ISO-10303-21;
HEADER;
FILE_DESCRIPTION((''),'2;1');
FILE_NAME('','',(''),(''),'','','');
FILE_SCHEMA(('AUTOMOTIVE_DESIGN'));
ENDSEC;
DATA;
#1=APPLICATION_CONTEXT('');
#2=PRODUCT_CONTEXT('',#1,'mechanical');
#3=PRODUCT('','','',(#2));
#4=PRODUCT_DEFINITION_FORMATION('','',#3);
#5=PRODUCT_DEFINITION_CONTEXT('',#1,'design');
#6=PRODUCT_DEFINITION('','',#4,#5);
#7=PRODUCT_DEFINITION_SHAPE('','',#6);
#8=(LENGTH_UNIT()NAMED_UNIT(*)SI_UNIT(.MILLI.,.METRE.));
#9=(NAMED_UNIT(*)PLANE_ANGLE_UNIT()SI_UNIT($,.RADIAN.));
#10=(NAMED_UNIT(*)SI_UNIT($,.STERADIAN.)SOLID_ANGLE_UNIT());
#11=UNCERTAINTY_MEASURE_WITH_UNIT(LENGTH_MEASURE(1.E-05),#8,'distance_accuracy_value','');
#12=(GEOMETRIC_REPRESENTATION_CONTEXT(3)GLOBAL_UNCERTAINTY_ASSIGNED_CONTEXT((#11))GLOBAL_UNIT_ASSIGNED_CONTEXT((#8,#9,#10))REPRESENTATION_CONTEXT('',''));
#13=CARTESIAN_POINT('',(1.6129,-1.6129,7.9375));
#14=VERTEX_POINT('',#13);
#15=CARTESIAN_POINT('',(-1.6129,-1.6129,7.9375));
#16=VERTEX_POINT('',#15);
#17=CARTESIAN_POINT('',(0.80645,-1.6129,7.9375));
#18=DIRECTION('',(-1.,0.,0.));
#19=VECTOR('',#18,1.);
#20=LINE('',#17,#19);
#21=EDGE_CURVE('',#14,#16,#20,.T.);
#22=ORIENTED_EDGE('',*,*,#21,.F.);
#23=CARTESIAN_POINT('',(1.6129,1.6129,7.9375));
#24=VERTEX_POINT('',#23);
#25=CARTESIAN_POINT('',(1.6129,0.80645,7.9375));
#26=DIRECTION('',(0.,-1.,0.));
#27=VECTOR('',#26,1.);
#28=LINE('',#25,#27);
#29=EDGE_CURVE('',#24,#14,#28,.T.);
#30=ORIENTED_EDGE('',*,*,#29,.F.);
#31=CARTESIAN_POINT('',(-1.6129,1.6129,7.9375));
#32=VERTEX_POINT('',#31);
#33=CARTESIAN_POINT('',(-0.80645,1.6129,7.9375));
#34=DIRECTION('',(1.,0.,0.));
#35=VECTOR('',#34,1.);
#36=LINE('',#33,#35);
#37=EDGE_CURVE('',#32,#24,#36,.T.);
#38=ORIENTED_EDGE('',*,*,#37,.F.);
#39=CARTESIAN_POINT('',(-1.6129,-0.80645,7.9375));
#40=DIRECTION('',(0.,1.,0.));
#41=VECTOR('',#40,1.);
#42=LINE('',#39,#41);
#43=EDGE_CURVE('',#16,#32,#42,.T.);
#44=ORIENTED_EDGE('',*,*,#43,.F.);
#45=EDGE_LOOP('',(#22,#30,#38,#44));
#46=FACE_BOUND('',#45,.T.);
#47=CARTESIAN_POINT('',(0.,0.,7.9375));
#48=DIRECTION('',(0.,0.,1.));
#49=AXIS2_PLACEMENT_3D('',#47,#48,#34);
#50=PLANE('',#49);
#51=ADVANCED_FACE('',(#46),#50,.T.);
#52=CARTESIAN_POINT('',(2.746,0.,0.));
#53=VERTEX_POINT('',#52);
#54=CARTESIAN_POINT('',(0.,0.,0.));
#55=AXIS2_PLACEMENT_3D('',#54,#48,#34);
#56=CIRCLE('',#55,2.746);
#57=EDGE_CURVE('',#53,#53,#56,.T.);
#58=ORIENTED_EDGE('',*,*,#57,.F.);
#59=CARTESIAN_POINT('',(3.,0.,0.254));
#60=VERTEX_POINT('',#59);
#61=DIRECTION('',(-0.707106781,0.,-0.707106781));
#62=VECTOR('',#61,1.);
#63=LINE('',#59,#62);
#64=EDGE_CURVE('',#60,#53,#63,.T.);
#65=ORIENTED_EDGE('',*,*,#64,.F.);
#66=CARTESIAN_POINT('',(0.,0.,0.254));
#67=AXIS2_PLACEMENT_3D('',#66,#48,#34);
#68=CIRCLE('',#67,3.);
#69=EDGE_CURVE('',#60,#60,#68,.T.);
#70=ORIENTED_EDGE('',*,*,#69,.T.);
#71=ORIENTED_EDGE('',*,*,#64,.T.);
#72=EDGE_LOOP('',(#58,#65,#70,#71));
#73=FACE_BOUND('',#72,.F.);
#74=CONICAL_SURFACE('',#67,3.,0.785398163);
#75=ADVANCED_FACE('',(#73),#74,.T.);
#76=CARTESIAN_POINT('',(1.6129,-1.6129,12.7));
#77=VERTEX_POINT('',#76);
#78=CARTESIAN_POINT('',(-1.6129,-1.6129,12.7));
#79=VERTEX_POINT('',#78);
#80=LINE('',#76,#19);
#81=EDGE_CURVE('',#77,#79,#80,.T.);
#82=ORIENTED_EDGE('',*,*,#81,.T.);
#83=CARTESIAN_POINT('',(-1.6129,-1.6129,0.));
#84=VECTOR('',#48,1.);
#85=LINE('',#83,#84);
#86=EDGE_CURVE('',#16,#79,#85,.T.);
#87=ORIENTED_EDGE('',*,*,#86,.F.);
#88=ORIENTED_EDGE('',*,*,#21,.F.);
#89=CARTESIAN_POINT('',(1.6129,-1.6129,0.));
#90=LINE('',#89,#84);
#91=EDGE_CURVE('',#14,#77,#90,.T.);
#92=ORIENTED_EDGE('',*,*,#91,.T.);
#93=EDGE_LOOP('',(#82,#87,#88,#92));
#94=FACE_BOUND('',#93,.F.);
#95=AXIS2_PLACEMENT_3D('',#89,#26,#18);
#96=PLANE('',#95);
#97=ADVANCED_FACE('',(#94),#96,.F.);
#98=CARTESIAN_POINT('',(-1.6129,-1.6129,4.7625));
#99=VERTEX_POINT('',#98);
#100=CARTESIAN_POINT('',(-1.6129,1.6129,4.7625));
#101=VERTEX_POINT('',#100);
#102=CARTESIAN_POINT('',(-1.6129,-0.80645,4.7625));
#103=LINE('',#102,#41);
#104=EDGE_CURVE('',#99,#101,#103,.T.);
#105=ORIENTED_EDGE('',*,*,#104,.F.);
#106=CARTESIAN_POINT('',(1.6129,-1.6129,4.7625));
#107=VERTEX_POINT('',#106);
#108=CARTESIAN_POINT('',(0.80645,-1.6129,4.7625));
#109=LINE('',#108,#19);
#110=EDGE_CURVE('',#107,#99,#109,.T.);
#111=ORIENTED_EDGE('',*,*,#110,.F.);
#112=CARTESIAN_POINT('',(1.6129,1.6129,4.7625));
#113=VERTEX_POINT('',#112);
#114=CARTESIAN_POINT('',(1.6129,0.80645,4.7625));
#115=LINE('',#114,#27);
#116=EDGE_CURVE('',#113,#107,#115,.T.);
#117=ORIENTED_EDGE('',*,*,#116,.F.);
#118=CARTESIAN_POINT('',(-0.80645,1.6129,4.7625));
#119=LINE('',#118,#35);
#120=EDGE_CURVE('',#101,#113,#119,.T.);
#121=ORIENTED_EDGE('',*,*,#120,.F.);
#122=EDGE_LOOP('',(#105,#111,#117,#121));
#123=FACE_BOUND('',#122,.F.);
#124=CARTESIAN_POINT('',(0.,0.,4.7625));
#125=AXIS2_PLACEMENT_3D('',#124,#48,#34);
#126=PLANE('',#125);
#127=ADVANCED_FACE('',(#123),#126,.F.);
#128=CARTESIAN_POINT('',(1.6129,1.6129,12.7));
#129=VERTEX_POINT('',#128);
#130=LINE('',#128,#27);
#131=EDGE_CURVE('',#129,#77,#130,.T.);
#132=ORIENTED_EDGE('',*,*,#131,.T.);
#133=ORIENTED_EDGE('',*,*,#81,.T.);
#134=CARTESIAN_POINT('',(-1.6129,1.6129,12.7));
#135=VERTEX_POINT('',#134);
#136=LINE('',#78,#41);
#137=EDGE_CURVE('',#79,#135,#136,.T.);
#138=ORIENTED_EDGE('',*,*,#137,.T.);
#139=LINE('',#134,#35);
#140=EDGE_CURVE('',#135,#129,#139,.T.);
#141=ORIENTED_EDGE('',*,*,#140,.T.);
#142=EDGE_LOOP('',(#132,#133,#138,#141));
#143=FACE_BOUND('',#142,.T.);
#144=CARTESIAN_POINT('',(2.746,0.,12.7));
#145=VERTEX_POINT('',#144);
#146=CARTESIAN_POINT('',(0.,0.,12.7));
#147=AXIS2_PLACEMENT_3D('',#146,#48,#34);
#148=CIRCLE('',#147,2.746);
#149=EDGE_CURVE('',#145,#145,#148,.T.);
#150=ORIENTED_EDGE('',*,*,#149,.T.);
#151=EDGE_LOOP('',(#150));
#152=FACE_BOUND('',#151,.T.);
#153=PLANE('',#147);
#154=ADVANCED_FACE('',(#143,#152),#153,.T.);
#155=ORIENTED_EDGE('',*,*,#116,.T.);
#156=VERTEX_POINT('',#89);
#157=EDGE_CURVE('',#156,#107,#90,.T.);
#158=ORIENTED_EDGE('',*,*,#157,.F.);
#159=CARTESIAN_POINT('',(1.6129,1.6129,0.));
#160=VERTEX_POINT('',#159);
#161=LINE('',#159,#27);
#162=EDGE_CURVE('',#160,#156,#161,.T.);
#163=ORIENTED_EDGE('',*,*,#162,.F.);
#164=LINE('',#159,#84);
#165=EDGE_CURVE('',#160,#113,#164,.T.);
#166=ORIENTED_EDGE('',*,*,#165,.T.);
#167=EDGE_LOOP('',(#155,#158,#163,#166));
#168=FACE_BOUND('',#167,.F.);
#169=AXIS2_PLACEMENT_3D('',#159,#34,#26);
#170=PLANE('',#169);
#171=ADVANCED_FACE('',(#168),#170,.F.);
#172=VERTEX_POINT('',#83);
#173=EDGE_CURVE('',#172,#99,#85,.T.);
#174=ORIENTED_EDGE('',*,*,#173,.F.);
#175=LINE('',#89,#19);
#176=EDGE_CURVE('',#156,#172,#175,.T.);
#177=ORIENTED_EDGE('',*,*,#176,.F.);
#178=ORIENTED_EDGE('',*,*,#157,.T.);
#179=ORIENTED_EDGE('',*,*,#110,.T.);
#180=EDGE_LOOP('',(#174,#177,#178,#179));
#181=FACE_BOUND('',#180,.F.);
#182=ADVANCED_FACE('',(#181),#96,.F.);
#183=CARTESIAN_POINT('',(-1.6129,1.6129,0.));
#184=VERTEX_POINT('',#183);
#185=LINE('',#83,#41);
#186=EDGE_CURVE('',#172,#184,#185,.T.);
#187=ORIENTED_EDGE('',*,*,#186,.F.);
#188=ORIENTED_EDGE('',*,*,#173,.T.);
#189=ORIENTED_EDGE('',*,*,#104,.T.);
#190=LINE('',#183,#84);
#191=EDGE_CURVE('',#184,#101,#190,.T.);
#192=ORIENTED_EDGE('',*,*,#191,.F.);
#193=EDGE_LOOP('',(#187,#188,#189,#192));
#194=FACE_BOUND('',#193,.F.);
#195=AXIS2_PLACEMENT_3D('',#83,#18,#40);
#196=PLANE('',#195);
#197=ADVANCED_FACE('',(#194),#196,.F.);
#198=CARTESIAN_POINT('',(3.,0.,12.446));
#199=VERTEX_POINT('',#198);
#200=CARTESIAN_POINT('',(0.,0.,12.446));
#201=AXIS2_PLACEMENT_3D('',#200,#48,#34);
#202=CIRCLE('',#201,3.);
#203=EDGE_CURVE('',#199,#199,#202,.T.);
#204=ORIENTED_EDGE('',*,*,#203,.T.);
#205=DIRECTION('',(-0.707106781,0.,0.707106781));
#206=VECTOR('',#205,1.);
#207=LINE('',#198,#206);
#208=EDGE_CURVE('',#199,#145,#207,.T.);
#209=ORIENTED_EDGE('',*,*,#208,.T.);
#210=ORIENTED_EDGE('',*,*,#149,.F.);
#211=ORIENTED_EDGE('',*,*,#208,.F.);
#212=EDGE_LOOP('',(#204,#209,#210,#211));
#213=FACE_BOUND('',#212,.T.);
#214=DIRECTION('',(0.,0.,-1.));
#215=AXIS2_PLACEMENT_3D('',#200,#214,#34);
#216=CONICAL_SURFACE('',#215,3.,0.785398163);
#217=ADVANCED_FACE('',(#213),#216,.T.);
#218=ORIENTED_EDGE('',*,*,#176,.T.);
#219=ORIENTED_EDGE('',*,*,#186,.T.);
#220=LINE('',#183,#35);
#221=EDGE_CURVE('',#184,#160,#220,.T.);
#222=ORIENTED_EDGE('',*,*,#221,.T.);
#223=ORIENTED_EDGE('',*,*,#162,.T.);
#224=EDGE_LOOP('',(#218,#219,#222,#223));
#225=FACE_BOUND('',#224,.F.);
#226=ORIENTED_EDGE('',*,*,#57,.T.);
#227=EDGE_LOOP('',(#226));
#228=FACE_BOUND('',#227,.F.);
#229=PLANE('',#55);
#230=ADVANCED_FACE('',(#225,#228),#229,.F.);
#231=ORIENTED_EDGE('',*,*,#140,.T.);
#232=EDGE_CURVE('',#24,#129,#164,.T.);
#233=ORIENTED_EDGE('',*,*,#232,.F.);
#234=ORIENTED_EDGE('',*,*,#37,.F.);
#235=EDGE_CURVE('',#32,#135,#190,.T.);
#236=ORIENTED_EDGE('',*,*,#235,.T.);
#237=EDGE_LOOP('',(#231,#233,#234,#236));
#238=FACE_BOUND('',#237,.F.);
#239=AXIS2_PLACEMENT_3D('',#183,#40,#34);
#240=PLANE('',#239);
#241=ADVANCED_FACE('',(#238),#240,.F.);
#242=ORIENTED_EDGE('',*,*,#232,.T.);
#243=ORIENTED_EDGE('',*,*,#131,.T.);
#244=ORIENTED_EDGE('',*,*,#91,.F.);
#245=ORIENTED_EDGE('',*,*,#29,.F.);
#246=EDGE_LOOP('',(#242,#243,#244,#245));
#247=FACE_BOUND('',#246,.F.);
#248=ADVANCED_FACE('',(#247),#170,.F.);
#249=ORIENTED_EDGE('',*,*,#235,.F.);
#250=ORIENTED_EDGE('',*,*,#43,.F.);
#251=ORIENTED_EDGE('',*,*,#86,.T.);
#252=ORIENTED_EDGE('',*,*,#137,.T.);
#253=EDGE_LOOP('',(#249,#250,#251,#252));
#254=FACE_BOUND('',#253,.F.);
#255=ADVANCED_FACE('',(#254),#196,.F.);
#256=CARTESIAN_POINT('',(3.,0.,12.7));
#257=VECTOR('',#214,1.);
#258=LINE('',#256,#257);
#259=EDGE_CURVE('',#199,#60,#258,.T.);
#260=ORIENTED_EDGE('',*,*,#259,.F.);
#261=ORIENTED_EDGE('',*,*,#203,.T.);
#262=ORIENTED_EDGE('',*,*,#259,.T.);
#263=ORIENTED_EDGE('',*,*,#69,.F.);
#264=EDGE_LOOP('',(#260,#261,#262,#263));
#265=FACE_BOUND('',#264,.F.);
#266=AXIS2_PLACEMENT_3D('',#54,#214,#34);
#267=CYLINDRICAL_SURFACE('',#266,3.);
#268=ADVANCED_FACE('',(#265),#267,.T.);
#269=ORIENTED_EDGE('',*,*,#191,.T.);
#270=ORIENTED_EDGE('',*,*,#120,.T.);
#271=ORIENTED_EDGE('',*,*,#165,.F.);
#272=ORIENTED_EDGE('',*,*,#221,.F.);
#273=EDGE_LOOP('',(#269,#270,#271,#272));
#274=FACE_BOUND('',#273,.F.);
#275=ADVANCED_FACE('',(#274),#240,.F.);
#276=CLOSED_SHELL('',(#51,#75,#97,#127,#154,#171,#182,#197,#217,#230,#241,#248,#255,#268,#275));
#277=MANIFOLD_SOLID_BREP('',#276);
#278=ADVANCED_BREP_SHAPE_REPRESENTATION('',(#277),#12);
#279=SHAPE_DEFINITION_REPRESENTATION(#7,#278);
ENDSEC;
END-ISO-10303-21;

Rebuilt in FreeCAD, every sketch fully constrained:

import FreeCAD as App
import Part
import Sketcher
Q = App.Units.Quantity


def edges_at(feature, points):
    """Names of the edges that pass closest to the given points."""
    edges = feature.Shape.Edges
    near = lambda p: min(range(len(edges)), key=lambda i: edges[i].distToShape(Part.Vertex(*p))[0])
    return sorted({f"Edge{near(p) + 1}" for p in points})

doc = App.newDocument("Part")
body = doc.addObject("PartDesign::Body", "Body")

sketch1 = doc.addObject("Sketcher::SketchObject", "Sketch")
body.addObject(sketch1)
sketch1.AttachmentSupport = (doc.XY_Plane, [""])
sketch1.MapMode = "FlatFace"
sketch1.addGeometry([
    Part.Circle(App.Vector(0, 0, 0), App.Vector(0, 0, 1), 3),
    Part.LineSegment(App.Vector(-1.6, -1.6, 0), App.Vector(-1.6, 1.6, 0)),
    Part.LineSegment(App.Vector(-1.6, 1.6, 0), App.Vector(1.6, 1.6, 0)),
    Part.LineSegment(App.Vector(1.6, 1.6, 0), App.Vector(1.6, -1.6, 0)),
    Part.LineSegment(App.Vector(1.6, -1.6, 0), App.Vector(-1.6, -1.6, 0)),
], False)
sketch1.addConstraint([
    Sketcher.Constraint("Coincident", 1, 2, 2, 1),
    Sketcher.Constraint("Coincident", 2, 2, 3, 1),
    Sketcher.Constraint("Coincident", 3, 2, 4, 1),
    Sketcher.Constraint("Coincident", 4, 2, 1, 1),
    Sketcher.Constraint("Vertical", 1),
    Sketcher.Constraint("Horizontal", 2),
    Sketcher.Constraint("Vertical", 3),
    Sketcher.Constraint("Horizontal", 4),
    Sketcher.Constraint("Coincident", 0, 3, -1, 1),
    Sketcher.Constraint("Symmetric", 1, 2, 3, 2, -1, 1),
    Sketcher.Constraint("Equal", 4, 1),
    Sketcher.Constraint("Diameter", 0, Q("6 mm")),
    Sketcher.Constraint("DistanceX", 2, 1, 2, 2, Q("0.127 in")),
])
pad1 = doc.addObject("PartDesign::Pad", "Pad")
body.addObject(pad1)
pad1.Profile = sketch1
pad1.Length = Q("0.5 in")

sketch2 = doc.addObject("Sketcher::SketchObject", "Sketch001")
body.addObject(sketch2)
sketch2.AttachmentSupport = (doc.XY_Plane, [""])
sketch2.MapMode = "FlatFace"
sketch2.AttachmentOffset = App.Placement(App.Vector(0, 0, 0.25 * 25.4), App.Rotation())
sketch2.addGeometry(Part.Circle(App.Vector(0, 0, 0), App.Vector(0, 0, 1), 3), False)
sketch2.addConstraint([
    Sketcher.Constraint("Coincident", 0, 3, -1, 1),
    Sketcher.Constraint("Diameter", 0, Q("6 mm")),
])
pad2 = doc.addObject("PartDesign::Pad", "Pad001")
body.addObject(pad2)
pad2.Profile = sketch2
pad2.Length = Q("0.125 in")
pad2.Midplane = True
doc.recompute()

chamfer = doc.addObject("PartDesign::Chamfer", "Chamfer")
body.addObject(chamfer)
chamfer.Base = (pad2, edges_at(pad2, [(-3, 0, 0), (-3, 0, 12.7)]))
chamfer.Size = Q("0.01 in")

doc.recompute()
